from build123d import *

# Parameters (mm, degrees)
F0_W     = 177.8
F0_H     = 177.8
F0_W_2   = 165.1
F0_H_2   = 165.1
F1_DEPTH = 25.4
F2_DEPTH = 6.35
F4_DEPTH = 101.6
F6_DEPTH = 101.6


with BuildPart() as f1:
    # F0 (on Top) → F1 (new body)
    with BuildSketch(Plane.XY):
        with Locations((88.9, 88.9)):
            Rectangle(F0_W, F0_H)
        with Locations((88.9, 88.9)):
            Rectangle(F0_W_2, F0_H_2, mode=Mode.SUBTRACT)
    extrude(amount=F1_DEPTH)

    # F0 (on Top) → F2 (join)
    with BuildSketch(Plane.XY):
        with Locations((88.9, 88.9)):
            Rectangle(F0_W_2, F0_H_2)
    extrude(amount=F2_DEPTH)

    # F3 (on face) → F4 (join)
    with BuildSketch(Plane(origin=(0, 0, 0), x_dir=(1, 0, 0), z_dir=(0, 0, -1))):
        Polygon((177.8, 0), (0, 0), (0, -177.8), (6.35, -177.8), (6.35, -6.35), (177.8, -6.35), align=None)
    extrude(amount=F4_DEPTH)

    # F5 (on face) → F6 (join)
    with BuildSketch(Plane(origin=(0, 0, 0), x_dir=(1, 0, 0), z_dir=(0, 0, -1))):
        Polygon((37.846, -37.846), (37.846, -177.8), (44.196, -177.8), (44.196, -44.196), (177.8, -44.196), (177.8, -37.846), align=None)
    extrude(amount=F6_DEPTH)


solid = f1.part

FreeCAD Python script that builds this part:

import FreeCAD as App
import Part
import Sketcher
from FreeCAD import Vector
Q = App.Units.Quantity


def add_polygon(sketch, points):
    """Adds a closed chain of lines whose ends are joined by coincident constraints."""
    first, n = sketch.GeometryCount, len(points)
    for a, b in zip(points, points[1:] + points[:1]):
        sketch.addGeometry(Part.LineSegment(App.Vector(*a, 0), App.Vector(*b, 0)), False)
    for i in range(n):
        sketch.addConstraint(Sketcher.Constraint("Coincident", first + i, 2, first + (i + 1) % n, 1))

doc = App.newDocument("Part")
body = doc.addObject("PartDesign::Body", "Body")

sketch1 = body.newObject("Sketcher::SketchObject", "Sketch")
sketch1.AttachmentSupport = (doc.getObject("XY_Plane"), [""])
sketch1.MapMode = "FlatFace"
add_polygon(sketch1, [(0, 178), (0, 0), (178, 0), (178, 178)])
add_polygon(sketch1, [(171, 6), (6, 6), (6, 171), (171, 171)])
sketch1.addConstraint(Sketcher.Constraint("Vertical", 0))
sketch1.addConstraint(Sketcher.Constraint("Horizontal", 1))
sketch1.addConstraint(Sketcher.Constraint("Vertical", 2))
sketch1.addConstraint(Sketcher.Constraint("Horizontal", 3))
sketch1.addConstraint(Sketcher.Constraint("Horizontal", 4))
sketch1.addConstraint(Sketcher.Constraint("Vertical", 5))
sketch1.addConstraint(Sketcher.Constraint("Horizontal", 6))
sketch1.addConstraint(Sketcher.Constraint("Vertical", 7))
sketch1.addConstraint(Sketcher.Constraint("Coincident", 0, 2, -1, 1))
sketch1.addConstraint(Sketcher.Constraint("Equal", 3, 0))
sketch1.addConstraint(Sketcher.Constraint("Equal", 6, 5))
sketch1.addConstraint(Sketcher.Constraint("DistanceX", 1, 1, 1, 2, Q("7 in")))
sketch1.addConstraint(Sketcher.Constraint("DistanceX", 4, 2, 4, 1, Q("6.5 in")))
sketch1.addConstraint(Sketcher.Constraint("DistanceX", -1, 1, 4, 2, Q("0.25 in")))
sketch1.addConstraint(Sketcher.Constraint("DistanceY", -1, 1, 4, 2, Q("0.25 in")))
pad1 = body.newObject("PartDesign::Pad", "Pad")
pad1.Profile = sketch1
pad1.Length = Q("1 in")

sketch2 = body.newObject("Sketcher::SketchObject", "Sketch001")
sketch2.AttachmentSupport = (doc.getObject("XY_Plane"), [""])
sketch2.MapMode = "FlatFace"
add_polygon(sketch2, [(6, 171), (6, 6), (171, 6), (171, 171)])
sketch2.addConstraint(Sketcher.Constraint("Vertical", 0))
sketch2.addConstraint(Sketcher.Constraint("Horizontal", 1))
sketch2.addConstraint(Sketcher.Constraint("Vertical", 2))
sketch2.addConstraint(Sketcher.Constraint("Horizontal", 3))
sketch2.addConstraint(Sketcher.Constraint("Equal", 3, 0))
sketch2.addConstraint(Sketcher.Constraint("DistanceX", 1, 1, 1, 2, Q("6.5 in")))
sketch2.addConstraint(Sketcher.Constraint("DistanceX", -1, 1, 0, 2, Q("0.25 in")))
sketch2.addConstraint(Sketcher.Constraint("DistanceY", -1, 1, 0, 2, Q("0.25 in")))
pad2 = body.newObject("PartDesign::Pad", "Pad001")
pad2.Profile = sketch2
pad2.Length = Q("0.25 in")

sketch3 = body.newObject("Sketcher::SketchObject", "Sketch002")
sketch3.AttachmentSupport = (doc.getObject("XY_Plane"), [""])
sketch3.MapMode = "FlatFace"
add_polygon(sketch3, [(178, 0), (0, 0), (0, 178), (6, 178), (6, 6), (178, 6)])
sketch3.addConstraint(Sketcher.Constraint("Horizontal", 0))
sketch3.addConstraint(Sketcher.Constraint("Vertical", 1))
sketch3.addConstraint(Sketcher.Constraint("Horizontal", 2))
sketch3.addConstraint(Sketcher.Constraint("Vertical", 3))
sketch3.addConstraint(Sketcher.Constraint("Horizontal", 4))
sketch3.addConstraint(Sketcher.Constraint("Vertical", 5))
sketch3.addConstraint(Sketcher.Constraint("Coincident", 0, 2, -1, 1))
sketch3.addConstraint(Sketcher.Constraint("Equal", 0, 1))
sketch3.addConstraint(Sketcher.Constraint("Equal", 4, 3))
sketch3.addConstraint(Sketcher.Constraint("DistanceX", 0, 2, 0, 1, Q("7 in")))
sketch3.addConstraint(Sketcher.Constraint("DistanceX", 2, 1, 2, 2, Q("0.25 in")))
pad3 = body.newObject("PartDesign::Pad", "Pad002")
pad3.Profile = sketch3
pad3.Length = Q("4 in")
pad3.Reversed = True

sketch4 = body.newObject("Sketcher::SketchObject", "Sketch003")
sketch4.AttachmentSupport = (doc.getObject("XY_Plane"), [""])
sketch4.MapMode = "FlatFace"
add_polygon(sketch4, [(38, 38), (38, 178), (44, 178), (44, 44), (178, 44), (178, 38)])
sketch4.addConstraint(Sketcher.Constraint("Vertical", 0))
sketch4.addConstraint(Sketcher.Constraint("Horizontal", 1))
sketch4.addConstraint(Sketcher.Constraint("Vertical", 2))
sketch4.addConstraint(Sketcher.Constraint("Horizontal", 3))
sketch4.addConstraint(Sketcher.Constraint("Vertical", 4))
sketch4.addConstraint(Sketcher.Constraint("Horizontal", 5))
sketch4.addConstraint(Sketcher.Constraint("Equal", 5, 0))
sketch4.addConstraint(Sketcher.Constraint("Equal", 3, 2))
sketch4.addConstraint(Sketcher.Constraint("DistanceY", -1, 1, 0, 2, Q("7 in")))
sketch4.addConstraint(Sketcher.Constraint("DistanceX", -1, 1, 3, 2, Q("7 in")))
sketch4.addConstraint(Sketcher.Constraint("DistanceX", 1, 1, 1, 2, Q("0.25 in")))
sketch4.addConstraint(Sketcher.Constraint("DistanceX", 3, 1, 3, 2, Q("5.26 in")))
pad4 = body.newObject("PartDesign::Pad", "Pad003")
pad4.Profile = sketch4
pad4.Length = Q("4 in")
pad4.Reversed = True

doc.recompute()
